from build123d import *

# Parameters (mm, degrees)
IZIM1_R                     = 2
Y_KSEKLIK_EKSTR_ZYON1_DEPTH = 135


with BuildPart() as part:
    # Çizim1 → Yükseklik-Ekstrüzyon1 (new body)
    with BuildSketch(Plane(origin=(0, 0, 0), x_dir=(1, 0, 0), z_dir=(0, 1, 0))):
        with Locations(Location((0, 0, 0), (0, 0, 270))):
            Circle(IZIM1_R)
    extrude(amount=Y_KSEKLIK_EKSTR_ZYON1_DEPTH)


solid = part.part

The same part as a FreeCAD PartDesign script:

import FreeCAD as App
import Part
import Sketcher

V = App.Vector

doc = App.newDocument("Part")
body = doc.addObject("PartDesign::Body", "Body")

# Sketch on XZ plane
sketch1 = body.newObject("Sketcher::SketchObject", "Sketch")
sketch1.AttachmentSupport = (doc.getObject("XZ_Plane"), [""])
sketch1.MapMode = "FlatFace"
sketch1.addGeometry(Part.Circle(V(0, 0, 0), V(0, 0, 1), 2), False)
sketch1.addConstraint([
    Sketcher.Constraint("Coincident", 0, 3, -1, 1),
    Sketcher.Constraint("Diameter", 0, 4.0),
])
pad1 = body.newObject("PartDesign::Pad", "Pad")
pad1.Profile = sketch1
pad1.Length = 135
pad1.Reversed = True

doc.recompute()
